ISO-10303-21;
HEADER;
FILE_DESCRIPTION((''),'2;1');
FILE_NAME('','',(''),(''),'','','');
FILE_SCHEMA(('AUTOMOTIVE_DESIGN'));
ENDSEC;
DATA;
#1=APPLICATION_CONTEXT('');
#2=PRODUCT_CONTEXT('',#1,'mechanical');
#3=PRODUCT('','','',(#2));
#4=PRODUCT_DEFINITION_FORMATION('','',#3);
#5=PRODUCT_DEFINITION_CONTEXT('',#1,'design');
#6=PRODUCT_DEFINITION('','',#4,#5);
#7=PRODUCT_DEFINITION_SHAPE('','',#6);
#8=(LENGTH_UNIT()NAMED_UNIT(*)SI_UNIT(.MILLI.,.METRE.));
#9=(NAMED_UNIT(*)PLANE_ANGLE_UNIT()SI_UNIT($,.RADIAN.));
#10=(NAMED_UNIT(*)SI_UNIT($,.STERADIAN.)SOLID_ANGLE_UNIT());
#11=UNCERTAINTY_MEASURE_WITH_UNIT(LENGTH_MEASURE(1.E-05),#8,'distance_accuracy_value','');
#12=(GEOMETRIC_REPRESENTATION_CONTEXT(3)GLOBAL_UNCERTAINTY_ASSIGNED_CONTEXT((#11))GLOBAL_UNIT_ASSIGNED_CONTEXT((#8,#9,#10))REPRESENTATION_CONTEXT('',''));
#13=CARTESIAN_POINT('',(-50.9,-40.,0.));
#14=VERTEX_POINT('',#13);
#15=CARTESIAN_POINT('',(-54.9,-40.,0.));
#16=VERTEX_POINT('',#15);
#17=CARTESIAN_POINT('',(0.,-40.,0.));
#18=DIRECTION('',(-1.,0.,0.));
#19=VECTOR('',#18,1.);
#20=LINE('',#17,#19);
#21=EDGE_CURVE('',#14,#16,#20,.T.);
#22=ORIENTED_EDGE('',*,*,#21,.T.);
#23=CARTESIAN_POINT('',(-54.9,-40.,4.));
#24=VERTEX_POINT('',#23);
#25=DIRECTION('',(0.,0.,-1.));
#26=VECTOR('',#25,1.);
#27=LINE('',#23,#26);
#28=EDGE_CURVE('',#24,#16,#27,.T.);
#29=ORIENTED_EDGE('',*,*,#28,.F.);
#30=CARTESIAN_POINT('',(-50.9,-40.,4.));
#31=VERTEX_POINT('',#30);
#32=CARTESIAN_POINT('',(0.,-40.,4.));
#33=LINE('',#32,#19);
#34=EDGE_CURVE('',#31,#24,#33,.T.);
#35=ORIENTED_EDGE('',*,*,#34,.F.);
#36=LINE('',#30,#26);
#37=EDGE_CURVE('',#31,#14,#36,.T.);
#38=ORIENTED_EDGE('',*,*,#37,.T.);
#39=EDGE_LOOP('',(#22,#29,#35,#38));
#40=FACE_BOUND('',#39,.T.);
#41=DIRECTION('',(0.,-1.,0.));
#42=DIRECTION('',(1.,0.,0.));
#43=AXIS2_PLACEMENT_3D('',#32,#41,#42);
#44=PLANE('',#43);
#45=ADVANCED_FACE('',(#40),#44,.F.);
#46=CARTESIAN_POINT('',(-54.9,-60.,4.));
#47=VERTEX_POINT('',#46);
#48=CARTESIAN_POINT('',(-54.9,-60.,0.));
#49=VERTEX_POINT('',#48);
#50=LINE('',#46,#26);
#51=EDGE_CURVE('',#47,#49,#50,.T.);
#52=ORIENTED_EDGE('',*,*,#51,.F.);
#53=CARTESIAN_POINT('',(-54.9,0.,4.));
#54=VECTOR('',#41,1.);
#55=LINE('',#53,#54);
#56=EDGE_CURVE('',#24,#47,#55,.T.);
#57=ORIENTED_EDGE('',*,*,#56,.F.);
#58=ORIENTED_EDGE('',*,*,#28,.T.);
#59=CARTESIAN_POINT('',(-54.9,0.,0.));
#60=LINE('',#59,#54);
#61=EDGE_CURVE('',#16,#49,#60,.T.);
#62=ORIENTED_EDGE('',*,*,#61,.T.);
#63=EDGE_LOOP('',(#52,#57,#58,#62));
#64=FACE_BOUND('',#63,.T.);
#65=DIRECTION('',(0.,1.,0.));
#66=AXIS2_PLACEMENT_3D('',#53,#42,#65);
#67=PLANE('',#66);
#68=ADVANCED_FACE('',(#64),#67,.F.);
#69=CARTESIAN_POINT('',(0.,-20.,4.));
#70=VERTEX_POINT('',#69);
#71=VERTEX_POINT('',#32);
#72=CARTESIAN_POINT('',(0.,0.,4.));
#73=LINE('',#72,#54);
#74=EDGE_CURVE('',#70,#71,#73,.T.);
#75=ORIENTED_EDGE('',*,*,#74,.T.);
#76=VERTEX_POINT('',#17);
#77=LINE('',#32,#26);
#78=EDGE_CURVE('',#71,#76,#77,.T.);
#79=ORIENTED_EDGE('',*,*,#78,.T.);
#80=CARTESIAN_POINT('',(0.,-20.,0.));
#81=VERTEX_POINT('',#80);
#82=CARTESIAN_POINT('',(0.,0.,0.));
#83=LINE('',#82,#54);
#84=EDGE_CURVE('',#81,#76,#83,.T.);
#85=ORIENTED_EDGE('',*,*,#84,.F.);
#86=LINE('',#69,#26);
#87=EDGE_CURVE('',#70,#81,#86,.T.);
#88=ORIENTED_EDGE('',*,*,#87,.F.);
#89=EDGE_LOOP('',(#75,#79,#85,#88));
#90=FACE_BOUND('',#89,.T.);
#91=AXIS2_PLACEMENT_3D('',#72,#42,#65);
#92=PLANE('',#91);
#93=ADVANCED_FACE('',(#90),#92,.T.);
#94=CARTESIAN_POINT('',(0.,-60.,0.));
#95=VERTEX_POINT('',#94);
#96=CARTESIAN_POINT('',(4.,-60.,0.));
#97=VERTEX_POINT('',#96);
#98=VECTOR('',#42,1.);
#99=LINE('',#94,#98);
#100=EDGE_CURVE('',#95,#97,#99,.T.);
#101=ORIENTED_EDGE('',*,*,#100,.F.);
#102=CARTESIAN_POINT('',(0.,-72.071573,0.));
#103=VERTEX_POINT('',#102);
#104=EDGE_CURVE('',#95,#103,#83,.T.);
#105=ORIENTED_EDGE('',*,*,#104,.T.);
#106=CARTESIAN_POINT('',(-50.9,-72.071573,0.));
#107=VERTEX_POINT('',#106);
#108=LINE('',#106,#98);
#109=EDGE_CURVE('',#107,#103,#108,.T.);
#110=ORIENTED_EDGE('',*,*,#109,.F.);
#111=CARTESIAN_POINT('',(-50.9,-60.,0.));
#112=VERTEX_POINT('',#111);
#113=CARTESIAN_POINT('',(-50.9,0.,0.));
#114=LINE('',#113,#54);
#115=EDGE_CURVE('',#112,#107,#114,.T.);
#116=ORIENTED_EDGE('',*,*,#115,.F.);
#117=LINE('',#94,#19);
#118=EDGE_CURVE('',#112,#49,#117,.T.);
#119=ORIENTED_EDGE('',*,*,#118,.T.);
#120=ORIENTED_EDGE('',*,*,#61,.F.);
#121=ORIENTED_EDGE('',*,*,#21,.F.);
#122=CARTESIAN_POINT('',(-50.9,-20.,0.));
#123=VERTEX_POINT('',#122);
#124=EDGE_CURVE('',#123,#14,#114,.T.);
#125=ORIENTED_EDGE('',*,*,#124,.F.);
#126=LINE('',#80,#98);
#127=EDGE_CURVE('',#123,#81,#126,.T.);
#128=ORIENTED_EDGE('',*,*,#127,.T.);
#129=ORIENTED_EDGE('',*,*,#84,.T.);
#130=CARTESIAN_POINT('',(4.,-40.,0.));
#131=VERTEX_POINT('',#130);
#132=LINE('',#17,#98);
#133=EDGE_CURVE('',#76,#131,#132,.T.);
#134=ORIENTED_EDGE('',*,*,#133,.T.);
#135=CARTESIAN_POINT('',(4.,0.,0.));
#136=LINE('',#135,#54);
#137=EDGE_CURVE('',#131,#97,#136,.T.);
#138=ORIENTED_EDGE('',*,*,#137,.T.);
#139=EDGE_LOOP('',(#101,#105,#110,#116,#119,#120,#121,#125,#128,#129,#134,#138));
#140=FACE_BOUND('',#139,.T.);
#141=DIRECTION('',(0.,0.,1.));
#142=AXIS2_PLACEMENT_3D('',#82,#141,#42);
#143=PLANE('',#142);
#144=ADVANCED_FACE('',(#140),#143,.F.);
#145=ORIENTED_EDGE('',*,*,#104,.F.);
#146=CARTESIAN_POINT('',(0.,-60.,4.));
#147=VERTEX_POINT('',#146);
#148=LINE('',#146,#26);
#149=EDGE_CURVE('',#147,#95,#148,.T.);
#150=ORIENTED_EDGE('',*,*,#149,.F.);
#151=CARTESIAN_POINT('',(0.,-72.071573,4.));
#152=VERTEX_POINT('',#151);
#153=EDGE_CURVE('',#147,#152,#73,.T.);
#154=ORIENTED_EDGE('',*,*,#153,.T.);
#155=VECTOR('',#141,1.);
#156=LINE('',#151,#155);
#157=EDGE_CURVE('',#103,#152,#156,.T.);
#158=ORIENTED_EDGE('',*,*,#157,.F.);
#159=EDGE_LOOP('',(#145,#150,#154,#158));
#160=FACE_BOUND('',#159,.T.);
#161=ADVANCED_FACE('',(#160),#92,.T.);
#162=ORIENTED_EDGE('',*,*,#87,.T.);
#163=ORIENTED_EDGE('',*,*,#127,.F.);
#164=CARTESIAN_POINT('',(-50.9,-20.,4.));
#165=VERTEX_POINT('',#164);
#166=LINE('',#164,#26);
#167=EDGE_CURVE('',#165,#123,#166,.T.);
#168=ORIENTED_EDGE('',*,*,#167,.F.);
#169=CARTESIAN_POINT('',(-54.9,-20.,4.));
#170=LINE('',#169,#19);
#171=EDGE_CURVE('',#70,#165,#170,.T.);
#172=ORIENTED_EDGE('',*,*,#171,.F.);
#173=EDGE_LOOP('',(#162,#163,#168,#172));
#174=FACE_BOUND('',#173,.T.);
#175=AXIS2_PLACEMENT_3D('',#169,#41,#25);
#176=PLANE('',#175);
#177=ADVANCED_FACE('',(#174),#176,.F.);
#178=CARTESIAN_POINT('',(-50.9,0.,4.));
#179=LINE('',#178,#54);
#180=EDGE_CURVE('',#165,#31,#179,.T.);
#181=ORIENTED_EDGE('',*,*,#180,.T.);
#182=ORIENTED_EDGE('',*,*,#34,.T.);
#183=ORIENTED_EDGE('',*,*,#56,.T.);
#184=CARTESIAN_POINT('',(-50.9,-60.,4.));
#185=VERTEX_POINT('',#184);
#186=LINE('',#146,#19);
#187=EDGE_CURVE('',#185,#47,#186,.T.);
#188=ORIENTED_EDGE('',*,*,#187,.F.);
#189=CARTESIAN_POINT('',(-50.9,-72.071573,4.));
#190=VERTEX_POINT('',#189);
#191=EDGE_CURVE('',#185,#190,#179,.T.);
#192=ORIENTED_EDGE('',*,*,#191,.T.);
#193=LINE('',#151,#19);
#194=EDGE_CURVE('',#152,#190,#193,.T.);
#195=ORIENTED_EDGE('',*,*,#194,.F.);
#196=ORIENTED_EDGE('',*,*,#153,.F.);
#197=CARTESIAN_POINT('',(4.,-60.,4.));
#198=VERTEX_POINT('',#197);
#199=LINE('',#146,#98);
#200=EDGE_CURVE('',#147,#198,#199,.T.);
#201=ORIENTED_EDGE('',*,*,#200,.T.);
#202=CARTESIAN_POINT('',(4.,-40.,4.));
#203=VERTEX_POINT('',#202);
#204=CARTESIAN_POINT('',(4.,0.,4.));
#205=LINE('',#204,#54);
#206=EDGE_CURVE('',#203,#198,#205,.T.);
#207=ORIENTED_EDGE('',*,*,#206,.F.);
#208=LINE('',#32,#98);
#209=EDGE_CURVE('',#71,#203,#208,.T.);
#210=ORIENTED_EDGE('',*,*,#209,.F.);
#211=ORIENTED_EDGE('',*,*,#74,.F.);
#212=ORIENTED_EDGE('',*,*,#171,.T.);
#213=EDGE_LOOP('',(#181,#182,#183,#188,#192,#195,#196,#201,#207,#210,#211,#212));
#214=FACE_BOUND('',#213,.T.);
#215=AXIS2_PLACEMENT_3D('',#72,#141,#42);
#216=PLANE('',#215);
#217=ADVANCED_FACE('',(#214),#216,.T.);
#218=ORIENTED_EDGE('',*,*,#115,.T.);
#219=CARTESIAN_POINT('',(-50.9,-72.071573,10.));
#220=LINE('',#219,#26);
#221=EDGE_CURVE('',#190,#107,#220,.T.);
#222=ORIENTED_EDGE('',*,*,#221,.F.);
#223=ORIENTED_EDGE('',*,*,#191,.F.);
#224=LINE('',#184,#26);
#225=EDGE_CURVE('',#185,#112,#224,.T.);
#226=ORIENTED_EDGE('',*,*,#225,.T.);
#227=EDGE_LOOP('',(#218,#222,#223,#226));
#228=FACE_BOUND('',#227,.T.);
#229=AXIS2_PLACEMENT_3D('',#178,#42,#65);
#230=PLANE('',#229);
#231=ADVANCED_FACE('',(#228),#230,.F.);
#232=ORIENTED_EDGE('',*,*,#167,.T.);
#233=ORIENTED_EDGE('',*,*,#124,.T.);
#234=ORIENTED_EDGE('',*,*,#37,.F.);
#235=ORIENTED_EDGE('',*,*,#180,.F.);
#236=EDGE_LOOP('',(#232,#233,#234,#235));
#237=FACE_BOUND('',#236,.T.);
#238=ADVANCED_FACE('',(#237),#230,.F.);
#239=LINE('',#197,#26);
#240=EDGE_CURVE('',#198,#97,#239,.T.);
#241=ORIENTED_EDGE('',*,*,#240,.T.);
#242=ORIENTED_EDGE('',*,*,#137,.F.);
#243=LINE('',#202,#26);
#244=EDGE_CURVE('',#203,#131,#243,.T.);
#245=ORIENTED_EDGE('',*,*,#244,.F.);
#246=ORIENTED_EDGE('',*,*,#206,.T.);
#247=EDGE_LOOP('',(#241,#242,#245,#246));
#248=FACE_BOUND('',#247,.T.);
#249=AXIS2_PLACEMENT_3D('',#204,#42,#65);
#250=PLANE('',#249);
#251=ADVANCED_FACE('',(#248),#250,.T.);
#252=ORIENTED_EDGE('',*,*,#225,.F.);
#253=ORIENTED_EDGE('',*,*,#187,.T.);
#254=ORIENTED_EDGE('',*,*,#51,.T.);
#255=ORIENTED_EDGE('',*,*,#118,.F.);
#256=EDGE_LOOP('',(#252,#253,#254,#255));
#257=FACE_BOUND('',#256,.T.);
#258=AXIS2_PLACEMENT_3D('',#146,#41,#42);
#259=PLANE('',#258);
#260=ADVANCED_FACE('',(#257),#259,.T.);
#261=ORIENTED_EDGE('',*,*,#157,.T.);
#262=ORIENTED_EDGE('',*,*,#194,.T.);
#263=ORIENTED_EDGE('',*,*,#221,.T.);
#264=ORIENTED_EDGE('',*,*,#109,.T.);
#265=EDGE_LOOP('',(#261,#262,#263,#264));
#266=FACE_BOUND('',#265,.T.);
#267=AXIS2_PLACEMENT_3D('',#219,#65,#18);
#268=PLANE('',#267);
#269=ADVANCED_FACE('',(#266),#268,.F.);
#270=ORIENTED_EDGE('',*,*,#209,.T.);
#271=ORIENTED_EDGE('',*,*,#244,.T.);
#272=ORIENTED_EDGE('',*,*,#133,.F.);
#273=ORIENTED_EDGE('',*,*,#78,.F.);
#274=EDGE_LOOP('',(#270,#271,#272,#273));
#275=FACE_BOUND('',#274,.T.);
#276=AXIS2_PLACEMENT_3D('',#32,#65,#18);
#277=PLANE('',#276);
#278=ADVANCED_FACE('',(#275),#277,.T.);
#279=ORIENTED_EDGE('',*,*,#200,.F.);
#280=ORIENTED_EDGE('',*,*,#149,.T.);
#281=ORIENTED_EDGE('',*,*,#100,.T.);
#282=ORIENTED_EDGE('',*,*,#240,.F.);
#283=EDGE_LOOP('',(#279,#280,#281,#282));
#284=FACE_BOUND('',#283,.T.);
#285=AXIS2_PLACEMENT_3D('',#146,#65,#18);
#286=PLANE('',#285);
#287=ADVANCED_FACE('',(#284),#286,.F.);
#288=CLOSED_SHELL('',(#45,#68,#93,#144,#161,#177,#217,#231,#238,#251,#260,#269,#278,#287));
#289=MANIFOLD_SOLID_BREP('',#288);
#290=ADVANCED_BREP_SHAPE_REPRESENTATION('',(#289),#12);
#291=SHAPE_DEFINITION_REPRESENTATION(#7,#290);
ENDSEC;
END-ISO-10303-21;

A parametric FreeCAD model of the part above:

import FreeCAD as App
import Part
import Sketcher
from FreeCAD import Vector

doc = App.newDocument("Part")
body = doc.addObject("PartDesign::Body", "Body")

# Sketch on XY plane
sketch1 = body.newObject("Sketcher::SketchObject", "Sketch")
sketch1.AttachmentSupport = (doc.getObject("XY_Plane"), [""])
sketch1.MapMode = "FlatFace"
sketch1.addGeometry([
    Part.LineSegment(Vector(-54.9, 0, 0), Vector(-54.9, -20, 0)),  # 0
    Part.LineSegment(Vector(-54.9, -20, 0), Vector(-50.9, -20, 0)),  # 1
    Part.LineSegment(Vector(-50.9, -20, 0), Vector(-50.9, -40, 0)),  # 2
    Part.LineSegment(Vector(-50.9, -40, 0), Vector(-54.9, -40, 0)),  # 3
    Part.LineSegment(Vector(-54.9, -40, 0), Vector(-54.9, -60, 0)),  # 4
    Part.LineSegment(Vector(-54.9, -60, 0), Vector(-50.9, -60, 0)),  # 5
    Part.LineSegment(Vector(-50.9, -60, 0), Vector(-50.9, -89.1, 0)),  # 6
    Part.LineSegment(Vector(-50.9, -89.1, 0), Vector(0, -89.1, 0)),  # 7
    Part.LineSegment(Vector(0, -89.1, 0), Vector(0, -60, 0)),  # 8
    Part.LineSegment(Vector(0, -60, 0), Vector(4, -60, 0)),  # 9
    Part.LineSegment(Vector(4, -60, 0), Vector(4, -40, 0)),  # 10
    Part.LineSegment(Vector(4, -40, 0), Vector(0, -40, 0)),  # 11
    Part.LineSegment(Vector(0, -40, 0), Vector(0, -20, 0)),  # 12
    Part.LineSegment(Vector(0, -20, 0), Vector(4, -20, 0)),  # 13
    Part.LineSegment(Vector(4, -20, 0), Vector(4, 0, 0)),  # 14
    Part.LineSegment(Vector(4, 0, 0), Vector(-54.9, 0, 0)),  # 15
], False)
sketch1.addConstraint([
    Sketcher.Constraint("Coincident", 0, 2, 1, 1),
    Sketcher.Constraint("Coincident", 1, 2, 2, 1),
    Sketcher.Constraint("Coincident", 2, 2, 3, 1),
    Sketcher.Constraint("Coincident", 3, 2, 4, 1),
    Sketcher.Constraint("Coincident", 4, 2, 5, 1),
    Sketcher.Constraint("Coincident", 5, 2, 6, 1),
    Sketcher.Constraint("Coincident", 6, 2, 7, 1),
    Sketcher.Constraint("Coincident", 7, 2, 8, 1),
    Sketcher.Constraint("Coincident", 8, 2, 9, 1),
    Sketcher.Constraint("Coincident", 9, 2, 10, 1),
    Sketcher.Constraint("Coincident", 10, 2, 11, 1),
    Sketcher.Constraint("Coincident", 11, 2, 12, 1),
    Sketcher.Constraint("Coincident", 12, 2, 13, 1),
    Sketcher.Constraint("Coincident", 13, 2, 14, 1),
    Sketcher.Constraint("Coincident", 14, 2, 15, 1),
    Sketcher.Constraint("Coincident", 15, 2, 0, 1),
    Sketcher.Constraint("Vertical", 0),
    Sketcher.Constraint("Horizontal", 1),
    Sketcher.Constraint("Vertical", 2),
    Sketcher.Constraint("Horizontal", 3),
    Sketcher.Constraint("Vertical", 4),
    Sketcher.Constraint("Horizontal", 5),
    Sketcher.Constraint("Vertical", 6),
    Sketcher.Constraint("Horizontal", 7),
    Sketcher.Constraint("Vertical", 8),
    Sketcher.Constraint("Horizontal", 9),
    Sketcher.Constraint("Vertical", 10),
    Sketcher.Constraint("Horizontal", 11),
    Sketcher.Constraint("Vertical", 12),
    Sketcher.Constraint("Horizontal", 13),
    Sketcher.Constraint("Vertical", 14),
    Sketcher.Constraint("Horizontal", 15),
    Sketcher.Constraint("PointOnObject", 7, 2, -2),
    Sketcher.Constraint("PointOnObject", 11, 2, -2),
    Sketcher.Constraint("PointOnObject", 14, 2, -1),
    Sketcher.Constraint("Horizontal", 5, 2, 8, 2),
    Sketcher.Constraint("Horizontal", 3, 2, 10, 2),
    Sketcher.Constraint("Horizontal", 1, 2, 12, 2),
    Sketcher.Constraint("Vertical", 0, 2, 3, 2),
    Sketcher.Constraint("Vertical", 2, 2, 5, 2),
    Sketcher.Constraint("Vertical", 10, 2, 13, 2),
    Sketcher.Constraint("Equal", 5, 9),
    Sketcher.Constraint("Equal", 0, 2),
    Sketcher.Constraint("Equal", 2, 4),
    Sketcher.Constraint("DistanceX", 1, 1, 1, 2, 4.0),
    Sketcher.Constraint("DistanceY", 0, 2, 0, 1, 20.0),
    Sketcher.Constraint("DistanceX", 7, 1, 7, 2, 50.9),
    Sketcher.Constraint("DistanceY", 6, 2, 6, 1, 29.071573),
])
pad1 = body.newObject("PartDesign::Pad", "Pad")
pad1.Profile = sketch1
pad1.Length = 4

# Sketch on XY plane
sketch2 = body.newObject("Sketcher::SketchObject", "Sketch001")
sketch2.AttachmentSupport = (doc.getObject("XY_Plane"), [""])
sketch2.MapMode = "FlatFace"
sketch2.addGeometry([
    Part.LineSegment(Vector(16, 9, 0), Vector(16, -20, 0)),
    Part.LineSegment(Vector(16, -20, 0), Vector(-55, -20, 0)),
    Part.LineSegment(Vector(-55, -20, 0), Vector(-55, 9, 0)),
    Part.LineSegment(Vector(-55, 9, 0), Vector(16, 9, 0)),
], False)
sketch2.addConstraint([
    Sketcher.Constraint("Coincident", 0, 2, 1, 1),
    Sketcher.Constraint("Coincident", 1, 2, 2, 1),
    Sketcher.Constraint("Coincident", 2, 2, 3, 1),
    Sketcher.Constraint("Coincident", 3, 2, 0, 1),
    Sketcher.Constraint("Vertical", 0),
    Sketcher.Constraint("Horizontal", 1),
    Sketcher.Constraint("Vertical", 2),
    Sketcher.Constraint("Horizontal", 3),
    Sketcher.Constraint("DistanceY", 0, 2, -1, 1, 20.0),
    Sketcher.Constraint("DistanceX", 1, 2, -1, 1, 54.9),
    Sketcher.Constraint("DistanceX", 1, 2, 1, 1, 70.761601),
    Sketcher.Constraint("DistanceY", 0, 2, 0, 1, 28.517073),
])
pocket1 = body.newObject("PartDesign::Pocket", "Pocket")
pocket1.Profile = sketch2
pocket1.Length = 4
pocket1.Reversed = True

# Sketch on XY plane
sketch3 = body.newObject("Sketcher::SketchObject", "Sketch002")
sketch3.AttachmentSupport = (doc.getObject("XY_Plane"), [""])
sketch3.MapMode = "FlatFace"
sketch3.addGeometry([
    Part.LineSegment(Vector(19, -72, 0), Vector(19, -89, 0)),
    Part.LineSegment(Vector(19, -89, 0), Vector(-51, -89, 0)),
    Part.LineSegment(Vector(-51, -89, 0), Vector(-51, -72, 0)),
    Part.LineSegment(Vector(-51, -72, 0), Vector(19, -72, 0)),
], False)
sketch3.addConstraint([
    Sketcher.Constraint("Coincident", 0, 2, 1, 1),
    Sketcher.Constraint("Coincident", 1, 2, 2, 1),
    Sketcher.Constraint("Coincident", 2, 2, 3, 1),
    Sketcher.Constraint("Coincident", 3, 2, 0, 1),
    Sketcher.Constraint("Vertical", 0),
    Sketcher.Constraint("Horizontal", 1),
    Sketcher.Constraint("Vertical", 2),
    Sketcher.Constraint("Horizontal", 3),
    Sketcher.Constraint("DistanceY", 0, 2, 0, 1, 17.0),
    Sketcher.Constraint("DistanceX", 1, 2, -1, 1, 50.9),
    Sketcher.Constraint("DistanceX", 1, 2, 1, 1, 69.966539),
    Sketcher.Constraint("DistanceY", 0, 2, -1, 1, 89.071573),
])
pocket2 = body.newObject("PartDesign::Pocket", "Pocket001")
pocket2.Profile = sketch3
pocket2.Length = 10
pocket2.Reversed = True

doc.recompute()
